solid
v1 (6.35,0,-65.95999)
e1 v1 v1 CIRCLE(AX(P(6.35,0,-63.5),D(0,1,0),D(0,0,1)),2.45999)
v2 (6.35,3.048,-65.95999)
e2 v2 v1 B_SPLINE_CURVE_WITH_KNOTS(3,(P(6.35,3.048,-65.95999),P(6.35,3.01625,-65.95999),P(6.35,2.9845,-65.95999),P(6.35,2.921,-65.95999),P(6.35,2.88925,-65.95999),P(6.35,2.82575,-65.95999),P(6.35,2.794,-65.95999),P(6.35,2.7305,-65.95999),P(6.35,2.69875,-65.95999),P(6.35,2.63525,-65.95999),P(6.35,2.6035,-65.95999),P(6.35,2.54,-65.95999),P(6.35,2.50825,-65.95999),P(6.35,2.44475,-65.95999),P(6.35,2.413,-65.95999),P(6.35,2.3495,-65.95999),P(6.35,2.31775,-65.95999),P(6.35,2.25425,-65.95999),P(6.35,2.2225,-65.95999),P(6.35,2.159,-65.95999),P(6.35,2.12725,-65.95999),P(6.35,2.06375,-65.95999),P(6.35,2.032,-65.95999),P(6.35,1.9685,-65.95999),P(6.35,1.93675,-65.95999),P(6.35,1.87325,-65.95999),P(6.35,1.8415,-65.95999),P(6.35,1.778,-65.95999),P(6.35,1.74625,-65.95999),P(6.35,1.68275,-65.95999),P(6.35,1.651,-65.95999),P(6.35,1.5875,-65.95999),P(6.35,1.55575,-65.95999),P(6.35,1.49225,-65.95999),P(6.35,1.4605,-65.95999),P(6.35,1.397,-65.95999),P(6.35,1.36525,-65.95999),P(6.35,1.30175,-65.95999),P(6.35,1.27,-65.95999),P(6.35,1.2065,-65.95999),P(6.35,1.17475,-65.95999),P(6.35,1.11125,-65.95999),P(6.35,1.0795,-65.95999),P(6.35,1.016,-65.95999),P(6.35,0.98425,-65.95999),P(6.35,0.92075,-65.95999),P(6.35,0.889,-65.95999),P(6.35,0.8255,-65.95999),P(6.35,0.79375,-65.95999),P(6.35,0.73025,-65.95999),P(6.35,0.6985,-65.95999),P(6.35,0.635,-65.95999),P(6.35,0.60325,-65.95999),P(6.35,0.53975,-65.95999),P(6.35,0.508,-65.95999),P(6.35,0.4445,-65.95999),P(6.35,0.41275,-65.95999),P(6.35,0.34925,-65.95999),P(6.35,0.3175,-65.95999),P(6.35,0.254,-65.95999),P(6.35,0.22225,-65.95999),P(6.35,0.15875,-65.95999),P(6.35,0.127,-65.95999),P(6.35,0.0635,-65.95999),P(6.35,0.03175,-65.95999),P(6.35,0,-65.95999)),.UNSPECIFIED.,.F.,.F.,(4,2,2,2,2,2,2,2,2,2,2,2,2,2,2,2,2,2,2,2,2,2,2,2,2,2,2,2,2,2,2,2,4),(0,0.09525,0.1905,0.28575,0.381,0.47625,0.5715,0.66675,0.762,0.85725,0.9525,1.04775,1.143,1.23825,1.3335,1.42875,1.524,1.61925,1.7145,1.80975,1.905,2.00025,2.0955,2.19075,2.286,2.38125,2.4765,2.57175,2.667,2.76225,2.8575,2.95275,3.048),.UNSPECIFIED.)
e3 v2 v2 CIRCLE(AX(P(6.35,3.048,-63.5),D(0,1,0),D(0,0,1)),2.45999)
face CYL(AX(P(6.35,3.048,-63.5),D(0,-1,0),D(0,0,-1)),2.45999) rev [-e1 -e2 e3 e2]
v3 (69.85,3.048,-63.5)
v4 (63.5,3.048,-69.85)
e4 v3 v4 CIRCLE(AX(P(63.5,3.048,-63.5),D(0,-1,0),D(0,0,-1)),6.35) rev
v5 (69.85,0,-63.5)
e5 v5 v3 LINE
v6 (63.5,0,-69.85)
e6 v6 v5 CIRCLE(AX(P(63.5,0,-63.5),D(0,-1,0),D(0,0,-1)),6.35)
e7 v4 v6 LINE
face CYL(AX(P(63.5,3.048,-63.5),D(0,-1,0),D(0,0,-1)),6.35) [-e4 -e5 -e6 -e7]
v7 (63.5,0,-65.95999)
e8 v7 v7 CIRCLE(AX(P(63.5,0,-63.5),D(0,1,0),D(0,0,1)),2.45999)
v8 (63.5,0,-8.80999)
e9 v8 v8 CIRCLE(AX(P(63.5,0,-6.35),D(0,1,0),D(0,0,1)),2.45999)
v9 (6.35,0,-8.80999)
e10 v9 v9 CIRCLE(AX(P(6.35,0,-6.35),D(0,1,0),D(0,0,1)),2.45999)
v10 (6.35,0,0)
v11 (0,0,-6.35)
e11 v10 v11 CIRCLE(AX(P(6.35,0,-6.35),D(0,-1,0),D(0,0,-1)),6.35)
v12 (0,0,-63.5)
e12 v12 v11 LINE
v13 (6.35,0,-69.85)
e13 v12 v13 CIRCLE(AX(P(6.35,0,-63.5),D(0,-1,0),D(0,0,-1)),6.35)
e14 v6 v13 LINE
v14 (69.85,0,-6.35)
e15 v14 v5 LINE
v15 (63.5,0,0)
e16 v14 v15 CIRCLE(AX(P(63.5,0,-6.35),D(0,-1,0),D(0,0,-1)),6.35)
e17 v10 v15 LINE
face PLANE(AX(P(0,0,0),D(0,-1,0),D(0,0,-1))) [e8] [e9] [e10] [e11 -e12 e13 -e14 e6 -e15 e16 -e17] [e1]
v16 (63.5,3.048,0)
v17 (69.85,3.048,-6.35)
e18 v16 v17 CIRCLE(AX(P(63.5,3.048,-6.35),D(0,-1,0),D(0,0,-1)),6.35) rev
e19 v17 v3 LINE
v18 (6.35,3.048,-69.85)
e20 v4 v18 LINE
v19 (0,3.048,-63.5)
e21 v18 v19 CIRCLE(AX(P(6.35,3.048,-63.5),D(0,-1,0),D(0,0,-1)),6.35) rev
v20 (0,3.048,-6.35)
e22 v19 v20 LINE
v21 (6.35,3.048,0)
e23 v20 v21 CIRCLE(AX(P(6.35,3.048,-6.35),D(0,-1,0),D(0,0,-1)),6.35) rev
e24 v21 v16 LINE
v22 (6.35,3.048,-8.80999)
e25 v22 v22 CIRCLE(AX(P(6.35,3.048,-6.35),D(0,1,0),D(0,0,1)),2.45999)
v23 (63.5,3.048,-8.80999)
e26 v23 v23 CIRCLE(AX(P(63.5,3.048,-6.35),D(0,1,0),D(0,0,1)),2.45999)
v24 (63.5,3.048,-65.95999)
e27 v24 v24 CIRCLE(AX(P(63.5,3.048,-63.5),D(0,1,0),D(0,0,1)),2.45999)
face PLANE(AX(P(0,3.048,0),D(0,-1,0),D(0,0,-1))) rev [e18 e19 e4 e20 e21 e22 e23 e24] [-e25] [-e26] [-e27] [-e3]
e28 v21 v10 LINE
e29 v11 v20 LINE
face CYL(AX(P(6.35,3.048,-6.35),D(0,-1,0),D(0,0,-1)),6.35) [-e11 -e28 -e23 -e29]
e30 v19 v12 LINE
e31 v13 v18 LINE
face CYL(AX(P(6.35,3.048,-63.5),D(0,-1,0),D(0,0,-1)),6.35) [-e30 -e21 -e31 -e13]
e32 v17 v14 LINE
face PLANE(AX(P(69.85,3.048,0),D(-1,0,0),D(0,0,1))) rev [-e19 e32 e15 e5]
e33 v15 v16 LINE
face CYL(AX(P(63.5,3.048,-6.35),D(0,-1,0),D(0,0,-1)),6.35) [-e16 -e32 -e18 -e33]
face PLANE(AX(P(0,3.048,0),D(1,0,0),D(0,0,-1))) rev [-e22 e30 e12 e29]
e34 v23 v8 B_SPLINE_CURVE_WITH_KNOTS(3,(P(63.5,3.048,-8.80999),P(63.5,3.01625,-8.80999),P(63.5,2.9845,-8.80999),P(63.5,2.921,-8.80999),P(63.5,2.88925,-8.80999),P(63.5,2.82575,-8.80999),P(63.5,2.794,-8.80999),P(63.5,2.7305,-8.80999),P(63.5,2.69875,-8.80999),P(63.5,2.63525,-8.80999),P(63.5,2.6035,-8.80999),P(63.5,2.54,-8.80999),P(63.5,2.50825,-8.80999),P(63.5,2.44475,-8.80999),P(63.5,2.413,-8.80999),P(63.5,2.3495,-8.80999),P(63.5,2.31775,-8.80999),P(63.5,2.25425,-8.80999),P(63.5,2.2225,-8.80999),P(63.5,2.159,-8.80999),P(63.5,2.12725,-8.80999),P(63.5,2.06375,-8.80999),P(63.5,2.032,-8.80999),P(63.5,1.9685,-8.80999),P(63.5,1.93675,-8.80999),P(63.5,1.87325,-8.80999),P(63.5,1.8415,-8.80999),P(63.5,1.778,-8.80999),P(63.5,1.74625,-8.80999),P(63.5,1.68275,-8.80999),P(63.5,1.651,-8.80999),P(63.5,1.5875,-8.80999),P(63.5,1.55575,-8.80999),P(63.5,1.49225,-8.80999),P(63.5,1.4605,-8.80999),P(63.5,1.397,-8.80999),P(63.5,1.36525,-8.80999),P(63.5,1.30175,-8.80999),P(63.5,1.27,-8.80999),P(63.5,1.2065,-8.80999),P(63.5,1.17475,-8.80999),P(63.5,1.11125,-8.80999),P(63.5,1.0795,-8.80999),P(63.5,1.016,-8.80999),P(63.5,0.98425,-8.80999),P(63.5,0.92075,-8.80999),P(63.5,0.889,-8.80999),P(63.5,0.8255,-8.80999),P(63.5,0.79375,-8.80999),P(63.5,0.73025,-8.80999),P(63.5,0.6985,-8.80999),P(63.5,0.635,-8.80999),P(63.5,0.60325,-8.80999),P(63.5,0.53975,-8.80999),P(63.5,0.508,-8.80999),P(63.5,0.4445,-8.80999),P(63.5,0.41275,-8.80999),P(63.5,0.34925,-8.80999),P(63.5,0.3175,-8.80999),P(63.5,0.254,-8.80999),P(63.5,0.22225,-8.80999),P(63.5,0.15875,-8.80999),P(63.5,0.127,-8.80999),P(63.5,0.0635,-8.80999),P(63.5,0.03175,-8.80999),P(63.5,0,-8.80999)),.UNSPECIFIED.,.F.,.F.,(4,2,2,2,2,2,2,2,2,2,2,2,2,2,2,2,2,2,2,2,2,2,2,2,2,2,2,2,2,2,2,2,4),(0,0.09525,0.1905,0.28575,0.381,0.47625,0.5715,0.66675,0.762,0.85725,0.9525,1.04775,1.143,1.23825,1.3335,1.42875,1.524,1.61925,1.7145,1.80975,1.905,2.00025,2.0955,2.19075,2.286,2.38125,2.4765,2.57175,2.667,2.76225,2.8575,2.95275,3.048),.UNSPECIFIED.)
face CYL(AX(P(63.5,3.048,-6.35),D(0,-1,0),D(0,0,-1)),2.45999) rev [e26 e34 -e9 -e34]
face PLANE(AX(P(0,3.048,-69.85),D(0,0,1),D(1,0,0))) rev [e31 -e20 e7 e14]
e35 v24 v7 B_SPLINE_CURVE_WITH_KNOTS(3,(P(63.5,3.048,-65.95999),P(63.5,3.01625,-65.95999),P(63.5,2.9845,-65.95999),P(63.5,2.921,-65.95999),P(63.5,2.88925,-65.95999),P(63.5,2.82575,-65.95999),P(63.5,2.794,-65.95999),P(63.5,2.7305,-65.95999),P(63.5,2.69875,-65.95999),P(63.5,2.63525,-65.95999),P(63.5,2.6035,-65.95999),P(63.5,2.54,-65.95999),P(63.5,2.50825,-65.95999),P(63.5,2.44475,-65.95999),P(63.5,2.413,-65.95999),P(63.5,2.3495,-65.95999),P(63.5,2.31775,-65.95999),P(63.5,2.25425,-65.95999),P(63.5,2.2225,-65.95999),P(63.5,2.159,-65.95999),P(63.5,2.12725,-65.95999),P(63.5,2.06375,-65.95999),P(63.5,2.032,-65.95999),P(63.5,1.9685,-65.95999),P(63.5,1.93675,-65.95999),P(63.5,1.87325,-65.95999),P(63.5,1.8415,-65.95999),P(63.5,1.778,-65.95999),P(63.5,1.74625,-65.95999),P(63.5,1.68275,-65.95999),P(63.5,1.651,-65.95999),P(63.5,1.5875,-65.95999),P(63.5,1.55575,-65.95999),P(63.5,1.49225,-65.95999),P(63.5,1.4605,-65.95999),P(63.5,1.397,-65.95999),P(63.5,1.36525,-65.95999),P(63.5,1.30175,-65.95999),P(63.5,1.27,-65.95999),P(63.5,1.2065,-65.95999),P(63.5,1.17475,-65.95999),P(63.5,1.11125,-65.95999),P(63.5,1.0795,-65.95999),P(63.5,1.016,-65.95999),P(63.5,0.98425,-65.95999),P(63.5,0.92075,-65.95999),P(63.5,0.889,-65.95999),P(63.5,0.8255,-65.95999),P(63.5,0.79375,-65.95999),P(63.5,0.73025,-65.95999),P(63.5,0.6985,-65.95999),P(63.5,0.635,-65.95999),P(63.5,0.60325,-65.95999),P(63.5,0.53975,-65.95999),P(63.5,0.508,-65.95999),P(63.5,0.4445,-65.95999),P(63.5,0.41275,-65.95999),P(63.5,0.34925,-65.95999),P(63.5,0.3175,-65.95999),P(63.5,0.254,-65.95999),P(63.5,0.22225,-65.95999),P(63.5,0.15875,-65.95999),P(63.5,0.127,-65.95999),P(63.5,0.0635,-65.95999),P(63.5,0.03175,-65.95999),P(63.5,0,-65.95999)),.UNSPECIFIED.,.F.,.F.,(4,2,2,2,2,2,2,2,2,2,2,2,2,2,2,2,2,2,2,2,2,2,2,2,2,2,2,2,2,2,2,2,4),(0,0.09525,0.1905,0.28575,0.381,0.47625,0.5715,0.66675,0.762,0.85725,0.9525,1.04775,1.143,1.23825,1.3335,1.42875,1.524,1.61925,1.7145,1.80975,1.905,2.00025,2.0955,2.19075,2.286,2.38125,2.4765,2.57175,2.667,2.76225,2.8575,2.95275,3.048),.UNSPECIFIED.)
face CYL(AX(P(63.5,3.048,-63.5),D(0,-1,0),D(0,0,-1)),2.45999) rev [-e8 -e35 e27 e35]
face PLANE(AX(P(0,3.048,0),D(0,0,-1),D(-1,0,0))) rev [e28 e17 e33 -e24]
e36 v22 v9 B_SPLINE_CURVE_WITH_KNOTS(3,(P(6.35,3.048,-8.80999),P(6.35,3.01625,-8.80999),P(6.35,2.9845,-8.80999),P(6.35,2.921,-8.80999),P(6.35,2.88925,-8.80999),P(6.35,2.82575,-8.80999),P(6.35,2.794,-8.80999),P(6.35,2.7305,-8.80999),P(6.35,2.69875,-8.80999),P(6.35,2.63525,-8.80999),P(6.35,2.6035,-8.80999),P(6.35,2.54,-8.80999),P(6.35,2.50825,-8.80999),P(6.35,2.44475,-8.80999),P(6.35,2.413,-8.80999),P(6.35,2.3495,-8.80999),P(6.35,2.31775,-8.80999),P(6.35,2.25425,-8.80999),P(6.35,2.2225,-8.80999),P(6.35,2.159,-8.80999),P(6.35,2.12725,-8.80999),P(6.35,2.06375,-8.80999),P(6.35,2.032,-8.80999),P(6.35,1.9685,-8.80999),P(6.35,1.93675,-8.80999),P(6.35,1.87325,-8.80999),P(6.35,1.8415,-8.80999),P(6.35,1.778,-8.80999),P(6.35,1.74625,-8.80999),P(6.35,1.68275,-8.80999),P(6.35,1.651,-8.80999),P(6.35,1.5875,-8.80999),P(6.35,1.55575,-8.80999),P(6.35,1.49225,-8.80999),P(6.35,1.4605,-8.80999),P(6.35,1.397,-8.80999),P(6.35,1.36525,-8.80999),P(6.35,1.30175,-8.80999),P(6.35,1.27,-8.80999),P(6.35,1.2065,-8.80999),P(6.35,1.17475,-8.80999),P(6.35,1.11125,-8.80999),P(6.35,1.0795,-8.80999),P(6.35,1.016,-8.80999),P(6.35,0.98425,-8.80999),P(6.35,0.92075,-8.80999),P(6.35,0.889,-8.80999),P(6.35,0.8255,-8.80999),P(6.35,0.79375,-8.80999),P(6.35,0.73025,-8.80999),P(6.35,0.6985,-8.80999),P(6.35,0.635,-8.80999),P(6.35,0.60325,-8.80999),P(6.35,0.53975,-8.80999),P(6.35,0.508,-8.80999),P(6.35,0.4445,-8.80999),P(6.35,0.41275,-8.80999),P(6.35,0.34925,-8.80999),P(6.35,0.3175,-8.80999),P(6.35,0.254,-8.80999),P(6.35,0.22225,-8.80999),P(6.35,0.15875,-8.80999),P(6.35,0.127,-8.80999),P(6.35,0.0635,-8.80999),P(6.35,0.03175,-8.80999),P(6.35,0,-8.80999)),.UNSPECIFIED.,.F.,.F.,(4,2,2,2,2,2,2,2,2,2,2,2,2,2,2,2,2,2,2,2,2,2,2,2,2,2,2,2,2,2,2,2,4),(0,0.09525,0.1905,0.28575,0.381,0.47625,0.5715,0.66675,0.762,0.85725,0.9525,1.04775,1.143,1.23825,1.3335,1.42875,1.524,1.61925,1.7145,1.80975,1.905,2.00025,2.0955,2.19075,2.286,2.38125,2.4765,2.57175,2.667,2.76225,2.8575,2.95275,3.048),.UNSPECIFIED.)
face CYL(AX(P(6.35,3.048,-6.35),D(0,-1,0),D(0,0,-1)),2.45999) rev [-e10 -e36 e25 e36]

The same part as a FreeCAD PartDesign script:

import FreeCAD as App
import Part
import Sketcher

V = App.Vector
Q = App.Units.Quantity


def edges_at(feature, points):
    """Names of the edges that pass closest to the given points."""
    edges = feature.Shape.Edges
    near = lambda p: min(range(len(edges)), key=lambda i: edges[i].distToShape(Part.Vertex(*p))[0])
    return sorted({f"Edge{near(p) + 1}" for p in points})


def add_polygon(sketch, points):
    """Adds a closed chain of lines whose ends are joined by coincident constraints."""
    first, n = sketch.GeometryCount, len(points)
    for a, b in zip(points, points[1:] + points[:1]):
        sketch.addGeometry(Part.LineSegment(App.Vector(*a, 0), App.Vector(*b, 0)), False)
    for i in range(n):
        sketch.addConstraint(Sketcher.Constraint("Coincident", first + i, 2, first + (i + 1) % n, 1))

doc = App.newDocument("Part")
body = doc.addObject("PartDesign::Body", "Body")

# Sketch on XZ plane
sketch1 = doc.addObject("Sketcher::SketchObject", "Sketch")
body.addObject(sketch1)
sketch1.AttachmentSupport = (doc.XZ_Plane, [""])
sketch1.MapMode = "FlatFace"
add_polygon(sketch1, [(0, -70), (0, 0), (70, 0), (70, -70)])  # lines 0-3
sketch1.addConstraint(Sketcher.Constraint("Vertical", 0))
sketch1.addConstraint(Sketcher.Constraint("Horizontal", 1))
sketch1.addConstraint(Sketcher.Constraint("Vertical", 2))
sketch1.addConstraint(Sketcher.Constraint("Horizontal", 3))
sketch1.addConstraint(Sketcher.Constraint("Coincident", 0, 2, -1, 1))
sketch1.addConstraint(Sketcher.Constraint("Equal", 3, 0))
sketch1.addConstraint(Sketcher.Constraint("DistanceX", 1, 1, 1, 2, Q("2.75 in")))
pad1 = doc.addObject("PartDesign::Pad", "Pad")
body.addObject(pad1)
pad1.Profile = sketch1
pad1.Length = Q("0.12 in")
pad1.Reversed = True

# Sketch on XZ plane
sketch2 = doc.addObject("Sketcher::SketchObject", "Sketch001")
body.addObject(sketch2)
sketch2.AttachmentSupport = (doc.XZ_Plane, [""])
sketch2.MapMode = "FlatFace"
sketch2.addGeometry(Part.Circle(V(6.3, -6.3, 0), V(0, 0, 1), 2.5), False)
sketch2.addGeometry(Part.Circle(V(63.5, -6.3, 0), V(0, 0, 1), 2.5), False)
sketch2.addGeometry(Part.Circle(V(6.3, -63.5, 0), V(0, 0, 1), 2.5), False)
sketch2.addGeometry(Part.Circle(V(63.5, -63.5, 0), V(0, 0, 1), 2.5), False)
sketch2.addConstraint(Sketcher.Constraint("Equal", 0, 1))
sketch2.addConstraint(Sketcher.Constraint("Equal", 1, 2))
sketch2.addConstraint(Sketcher.Constraint("Equal", 2, 3))
sketch2.addConstraint(Sketcher.Constraint("Horizontal", 0, 3, 1, 3))
sketch2.addConstraint(Sketcher.Constraint("Horizontal", 2, 3, 3, 3))
sketch2.addConstraint(Sketcher.Constraint("Vertical", 0, 3, 2, 3))
sketch2.addConstraint(Sketcher.Constraint("Vertical", 1, 3, 3, 3))
sketch2.addConstraint(Sketcher.Constraint("Diameter", 0, Q("0.1937 in")))
sketch2.addConstraint(Sketcher.Constraint("DistanceX", -1, 1, 1, 3, Q("2.5 in")))
sketch2.addConstraint(Sketcher.Constraint("DistanceY", 2, 3, -1, 1, Q("2.5 in")))
sketch2.addConstraint(Sketcher.Constraint("DistanceX", -1, 1, 0, 3, Q("0.25 in")))
sketch2.addConstraint(Sketcher.Constraint("DistanceY", 0, 3, -1, 1, Q("0.25 in")))
pocket1 = doc.addObject("PartDesign::Pocket", "Pocket")
body.addObject(pocket1)
pocket1.Profile = sketch2
pocket1.Type = "ThroughAll"
doc.recompute()

fillet = doc.addObject("PartDesign::Fillet", "Fillet")
body.addObject(fillet)
fillet.Base = (pocket1, edges_at(pocket1, [
    (0, 1.524, -69.85),
    (69.85, 1.524, -69.85),
    (69.85, 1.524, 0),
    (0, 1.524, 0),
]))
fillet.Radius = Q("0.25 in")

doc.recompute()
